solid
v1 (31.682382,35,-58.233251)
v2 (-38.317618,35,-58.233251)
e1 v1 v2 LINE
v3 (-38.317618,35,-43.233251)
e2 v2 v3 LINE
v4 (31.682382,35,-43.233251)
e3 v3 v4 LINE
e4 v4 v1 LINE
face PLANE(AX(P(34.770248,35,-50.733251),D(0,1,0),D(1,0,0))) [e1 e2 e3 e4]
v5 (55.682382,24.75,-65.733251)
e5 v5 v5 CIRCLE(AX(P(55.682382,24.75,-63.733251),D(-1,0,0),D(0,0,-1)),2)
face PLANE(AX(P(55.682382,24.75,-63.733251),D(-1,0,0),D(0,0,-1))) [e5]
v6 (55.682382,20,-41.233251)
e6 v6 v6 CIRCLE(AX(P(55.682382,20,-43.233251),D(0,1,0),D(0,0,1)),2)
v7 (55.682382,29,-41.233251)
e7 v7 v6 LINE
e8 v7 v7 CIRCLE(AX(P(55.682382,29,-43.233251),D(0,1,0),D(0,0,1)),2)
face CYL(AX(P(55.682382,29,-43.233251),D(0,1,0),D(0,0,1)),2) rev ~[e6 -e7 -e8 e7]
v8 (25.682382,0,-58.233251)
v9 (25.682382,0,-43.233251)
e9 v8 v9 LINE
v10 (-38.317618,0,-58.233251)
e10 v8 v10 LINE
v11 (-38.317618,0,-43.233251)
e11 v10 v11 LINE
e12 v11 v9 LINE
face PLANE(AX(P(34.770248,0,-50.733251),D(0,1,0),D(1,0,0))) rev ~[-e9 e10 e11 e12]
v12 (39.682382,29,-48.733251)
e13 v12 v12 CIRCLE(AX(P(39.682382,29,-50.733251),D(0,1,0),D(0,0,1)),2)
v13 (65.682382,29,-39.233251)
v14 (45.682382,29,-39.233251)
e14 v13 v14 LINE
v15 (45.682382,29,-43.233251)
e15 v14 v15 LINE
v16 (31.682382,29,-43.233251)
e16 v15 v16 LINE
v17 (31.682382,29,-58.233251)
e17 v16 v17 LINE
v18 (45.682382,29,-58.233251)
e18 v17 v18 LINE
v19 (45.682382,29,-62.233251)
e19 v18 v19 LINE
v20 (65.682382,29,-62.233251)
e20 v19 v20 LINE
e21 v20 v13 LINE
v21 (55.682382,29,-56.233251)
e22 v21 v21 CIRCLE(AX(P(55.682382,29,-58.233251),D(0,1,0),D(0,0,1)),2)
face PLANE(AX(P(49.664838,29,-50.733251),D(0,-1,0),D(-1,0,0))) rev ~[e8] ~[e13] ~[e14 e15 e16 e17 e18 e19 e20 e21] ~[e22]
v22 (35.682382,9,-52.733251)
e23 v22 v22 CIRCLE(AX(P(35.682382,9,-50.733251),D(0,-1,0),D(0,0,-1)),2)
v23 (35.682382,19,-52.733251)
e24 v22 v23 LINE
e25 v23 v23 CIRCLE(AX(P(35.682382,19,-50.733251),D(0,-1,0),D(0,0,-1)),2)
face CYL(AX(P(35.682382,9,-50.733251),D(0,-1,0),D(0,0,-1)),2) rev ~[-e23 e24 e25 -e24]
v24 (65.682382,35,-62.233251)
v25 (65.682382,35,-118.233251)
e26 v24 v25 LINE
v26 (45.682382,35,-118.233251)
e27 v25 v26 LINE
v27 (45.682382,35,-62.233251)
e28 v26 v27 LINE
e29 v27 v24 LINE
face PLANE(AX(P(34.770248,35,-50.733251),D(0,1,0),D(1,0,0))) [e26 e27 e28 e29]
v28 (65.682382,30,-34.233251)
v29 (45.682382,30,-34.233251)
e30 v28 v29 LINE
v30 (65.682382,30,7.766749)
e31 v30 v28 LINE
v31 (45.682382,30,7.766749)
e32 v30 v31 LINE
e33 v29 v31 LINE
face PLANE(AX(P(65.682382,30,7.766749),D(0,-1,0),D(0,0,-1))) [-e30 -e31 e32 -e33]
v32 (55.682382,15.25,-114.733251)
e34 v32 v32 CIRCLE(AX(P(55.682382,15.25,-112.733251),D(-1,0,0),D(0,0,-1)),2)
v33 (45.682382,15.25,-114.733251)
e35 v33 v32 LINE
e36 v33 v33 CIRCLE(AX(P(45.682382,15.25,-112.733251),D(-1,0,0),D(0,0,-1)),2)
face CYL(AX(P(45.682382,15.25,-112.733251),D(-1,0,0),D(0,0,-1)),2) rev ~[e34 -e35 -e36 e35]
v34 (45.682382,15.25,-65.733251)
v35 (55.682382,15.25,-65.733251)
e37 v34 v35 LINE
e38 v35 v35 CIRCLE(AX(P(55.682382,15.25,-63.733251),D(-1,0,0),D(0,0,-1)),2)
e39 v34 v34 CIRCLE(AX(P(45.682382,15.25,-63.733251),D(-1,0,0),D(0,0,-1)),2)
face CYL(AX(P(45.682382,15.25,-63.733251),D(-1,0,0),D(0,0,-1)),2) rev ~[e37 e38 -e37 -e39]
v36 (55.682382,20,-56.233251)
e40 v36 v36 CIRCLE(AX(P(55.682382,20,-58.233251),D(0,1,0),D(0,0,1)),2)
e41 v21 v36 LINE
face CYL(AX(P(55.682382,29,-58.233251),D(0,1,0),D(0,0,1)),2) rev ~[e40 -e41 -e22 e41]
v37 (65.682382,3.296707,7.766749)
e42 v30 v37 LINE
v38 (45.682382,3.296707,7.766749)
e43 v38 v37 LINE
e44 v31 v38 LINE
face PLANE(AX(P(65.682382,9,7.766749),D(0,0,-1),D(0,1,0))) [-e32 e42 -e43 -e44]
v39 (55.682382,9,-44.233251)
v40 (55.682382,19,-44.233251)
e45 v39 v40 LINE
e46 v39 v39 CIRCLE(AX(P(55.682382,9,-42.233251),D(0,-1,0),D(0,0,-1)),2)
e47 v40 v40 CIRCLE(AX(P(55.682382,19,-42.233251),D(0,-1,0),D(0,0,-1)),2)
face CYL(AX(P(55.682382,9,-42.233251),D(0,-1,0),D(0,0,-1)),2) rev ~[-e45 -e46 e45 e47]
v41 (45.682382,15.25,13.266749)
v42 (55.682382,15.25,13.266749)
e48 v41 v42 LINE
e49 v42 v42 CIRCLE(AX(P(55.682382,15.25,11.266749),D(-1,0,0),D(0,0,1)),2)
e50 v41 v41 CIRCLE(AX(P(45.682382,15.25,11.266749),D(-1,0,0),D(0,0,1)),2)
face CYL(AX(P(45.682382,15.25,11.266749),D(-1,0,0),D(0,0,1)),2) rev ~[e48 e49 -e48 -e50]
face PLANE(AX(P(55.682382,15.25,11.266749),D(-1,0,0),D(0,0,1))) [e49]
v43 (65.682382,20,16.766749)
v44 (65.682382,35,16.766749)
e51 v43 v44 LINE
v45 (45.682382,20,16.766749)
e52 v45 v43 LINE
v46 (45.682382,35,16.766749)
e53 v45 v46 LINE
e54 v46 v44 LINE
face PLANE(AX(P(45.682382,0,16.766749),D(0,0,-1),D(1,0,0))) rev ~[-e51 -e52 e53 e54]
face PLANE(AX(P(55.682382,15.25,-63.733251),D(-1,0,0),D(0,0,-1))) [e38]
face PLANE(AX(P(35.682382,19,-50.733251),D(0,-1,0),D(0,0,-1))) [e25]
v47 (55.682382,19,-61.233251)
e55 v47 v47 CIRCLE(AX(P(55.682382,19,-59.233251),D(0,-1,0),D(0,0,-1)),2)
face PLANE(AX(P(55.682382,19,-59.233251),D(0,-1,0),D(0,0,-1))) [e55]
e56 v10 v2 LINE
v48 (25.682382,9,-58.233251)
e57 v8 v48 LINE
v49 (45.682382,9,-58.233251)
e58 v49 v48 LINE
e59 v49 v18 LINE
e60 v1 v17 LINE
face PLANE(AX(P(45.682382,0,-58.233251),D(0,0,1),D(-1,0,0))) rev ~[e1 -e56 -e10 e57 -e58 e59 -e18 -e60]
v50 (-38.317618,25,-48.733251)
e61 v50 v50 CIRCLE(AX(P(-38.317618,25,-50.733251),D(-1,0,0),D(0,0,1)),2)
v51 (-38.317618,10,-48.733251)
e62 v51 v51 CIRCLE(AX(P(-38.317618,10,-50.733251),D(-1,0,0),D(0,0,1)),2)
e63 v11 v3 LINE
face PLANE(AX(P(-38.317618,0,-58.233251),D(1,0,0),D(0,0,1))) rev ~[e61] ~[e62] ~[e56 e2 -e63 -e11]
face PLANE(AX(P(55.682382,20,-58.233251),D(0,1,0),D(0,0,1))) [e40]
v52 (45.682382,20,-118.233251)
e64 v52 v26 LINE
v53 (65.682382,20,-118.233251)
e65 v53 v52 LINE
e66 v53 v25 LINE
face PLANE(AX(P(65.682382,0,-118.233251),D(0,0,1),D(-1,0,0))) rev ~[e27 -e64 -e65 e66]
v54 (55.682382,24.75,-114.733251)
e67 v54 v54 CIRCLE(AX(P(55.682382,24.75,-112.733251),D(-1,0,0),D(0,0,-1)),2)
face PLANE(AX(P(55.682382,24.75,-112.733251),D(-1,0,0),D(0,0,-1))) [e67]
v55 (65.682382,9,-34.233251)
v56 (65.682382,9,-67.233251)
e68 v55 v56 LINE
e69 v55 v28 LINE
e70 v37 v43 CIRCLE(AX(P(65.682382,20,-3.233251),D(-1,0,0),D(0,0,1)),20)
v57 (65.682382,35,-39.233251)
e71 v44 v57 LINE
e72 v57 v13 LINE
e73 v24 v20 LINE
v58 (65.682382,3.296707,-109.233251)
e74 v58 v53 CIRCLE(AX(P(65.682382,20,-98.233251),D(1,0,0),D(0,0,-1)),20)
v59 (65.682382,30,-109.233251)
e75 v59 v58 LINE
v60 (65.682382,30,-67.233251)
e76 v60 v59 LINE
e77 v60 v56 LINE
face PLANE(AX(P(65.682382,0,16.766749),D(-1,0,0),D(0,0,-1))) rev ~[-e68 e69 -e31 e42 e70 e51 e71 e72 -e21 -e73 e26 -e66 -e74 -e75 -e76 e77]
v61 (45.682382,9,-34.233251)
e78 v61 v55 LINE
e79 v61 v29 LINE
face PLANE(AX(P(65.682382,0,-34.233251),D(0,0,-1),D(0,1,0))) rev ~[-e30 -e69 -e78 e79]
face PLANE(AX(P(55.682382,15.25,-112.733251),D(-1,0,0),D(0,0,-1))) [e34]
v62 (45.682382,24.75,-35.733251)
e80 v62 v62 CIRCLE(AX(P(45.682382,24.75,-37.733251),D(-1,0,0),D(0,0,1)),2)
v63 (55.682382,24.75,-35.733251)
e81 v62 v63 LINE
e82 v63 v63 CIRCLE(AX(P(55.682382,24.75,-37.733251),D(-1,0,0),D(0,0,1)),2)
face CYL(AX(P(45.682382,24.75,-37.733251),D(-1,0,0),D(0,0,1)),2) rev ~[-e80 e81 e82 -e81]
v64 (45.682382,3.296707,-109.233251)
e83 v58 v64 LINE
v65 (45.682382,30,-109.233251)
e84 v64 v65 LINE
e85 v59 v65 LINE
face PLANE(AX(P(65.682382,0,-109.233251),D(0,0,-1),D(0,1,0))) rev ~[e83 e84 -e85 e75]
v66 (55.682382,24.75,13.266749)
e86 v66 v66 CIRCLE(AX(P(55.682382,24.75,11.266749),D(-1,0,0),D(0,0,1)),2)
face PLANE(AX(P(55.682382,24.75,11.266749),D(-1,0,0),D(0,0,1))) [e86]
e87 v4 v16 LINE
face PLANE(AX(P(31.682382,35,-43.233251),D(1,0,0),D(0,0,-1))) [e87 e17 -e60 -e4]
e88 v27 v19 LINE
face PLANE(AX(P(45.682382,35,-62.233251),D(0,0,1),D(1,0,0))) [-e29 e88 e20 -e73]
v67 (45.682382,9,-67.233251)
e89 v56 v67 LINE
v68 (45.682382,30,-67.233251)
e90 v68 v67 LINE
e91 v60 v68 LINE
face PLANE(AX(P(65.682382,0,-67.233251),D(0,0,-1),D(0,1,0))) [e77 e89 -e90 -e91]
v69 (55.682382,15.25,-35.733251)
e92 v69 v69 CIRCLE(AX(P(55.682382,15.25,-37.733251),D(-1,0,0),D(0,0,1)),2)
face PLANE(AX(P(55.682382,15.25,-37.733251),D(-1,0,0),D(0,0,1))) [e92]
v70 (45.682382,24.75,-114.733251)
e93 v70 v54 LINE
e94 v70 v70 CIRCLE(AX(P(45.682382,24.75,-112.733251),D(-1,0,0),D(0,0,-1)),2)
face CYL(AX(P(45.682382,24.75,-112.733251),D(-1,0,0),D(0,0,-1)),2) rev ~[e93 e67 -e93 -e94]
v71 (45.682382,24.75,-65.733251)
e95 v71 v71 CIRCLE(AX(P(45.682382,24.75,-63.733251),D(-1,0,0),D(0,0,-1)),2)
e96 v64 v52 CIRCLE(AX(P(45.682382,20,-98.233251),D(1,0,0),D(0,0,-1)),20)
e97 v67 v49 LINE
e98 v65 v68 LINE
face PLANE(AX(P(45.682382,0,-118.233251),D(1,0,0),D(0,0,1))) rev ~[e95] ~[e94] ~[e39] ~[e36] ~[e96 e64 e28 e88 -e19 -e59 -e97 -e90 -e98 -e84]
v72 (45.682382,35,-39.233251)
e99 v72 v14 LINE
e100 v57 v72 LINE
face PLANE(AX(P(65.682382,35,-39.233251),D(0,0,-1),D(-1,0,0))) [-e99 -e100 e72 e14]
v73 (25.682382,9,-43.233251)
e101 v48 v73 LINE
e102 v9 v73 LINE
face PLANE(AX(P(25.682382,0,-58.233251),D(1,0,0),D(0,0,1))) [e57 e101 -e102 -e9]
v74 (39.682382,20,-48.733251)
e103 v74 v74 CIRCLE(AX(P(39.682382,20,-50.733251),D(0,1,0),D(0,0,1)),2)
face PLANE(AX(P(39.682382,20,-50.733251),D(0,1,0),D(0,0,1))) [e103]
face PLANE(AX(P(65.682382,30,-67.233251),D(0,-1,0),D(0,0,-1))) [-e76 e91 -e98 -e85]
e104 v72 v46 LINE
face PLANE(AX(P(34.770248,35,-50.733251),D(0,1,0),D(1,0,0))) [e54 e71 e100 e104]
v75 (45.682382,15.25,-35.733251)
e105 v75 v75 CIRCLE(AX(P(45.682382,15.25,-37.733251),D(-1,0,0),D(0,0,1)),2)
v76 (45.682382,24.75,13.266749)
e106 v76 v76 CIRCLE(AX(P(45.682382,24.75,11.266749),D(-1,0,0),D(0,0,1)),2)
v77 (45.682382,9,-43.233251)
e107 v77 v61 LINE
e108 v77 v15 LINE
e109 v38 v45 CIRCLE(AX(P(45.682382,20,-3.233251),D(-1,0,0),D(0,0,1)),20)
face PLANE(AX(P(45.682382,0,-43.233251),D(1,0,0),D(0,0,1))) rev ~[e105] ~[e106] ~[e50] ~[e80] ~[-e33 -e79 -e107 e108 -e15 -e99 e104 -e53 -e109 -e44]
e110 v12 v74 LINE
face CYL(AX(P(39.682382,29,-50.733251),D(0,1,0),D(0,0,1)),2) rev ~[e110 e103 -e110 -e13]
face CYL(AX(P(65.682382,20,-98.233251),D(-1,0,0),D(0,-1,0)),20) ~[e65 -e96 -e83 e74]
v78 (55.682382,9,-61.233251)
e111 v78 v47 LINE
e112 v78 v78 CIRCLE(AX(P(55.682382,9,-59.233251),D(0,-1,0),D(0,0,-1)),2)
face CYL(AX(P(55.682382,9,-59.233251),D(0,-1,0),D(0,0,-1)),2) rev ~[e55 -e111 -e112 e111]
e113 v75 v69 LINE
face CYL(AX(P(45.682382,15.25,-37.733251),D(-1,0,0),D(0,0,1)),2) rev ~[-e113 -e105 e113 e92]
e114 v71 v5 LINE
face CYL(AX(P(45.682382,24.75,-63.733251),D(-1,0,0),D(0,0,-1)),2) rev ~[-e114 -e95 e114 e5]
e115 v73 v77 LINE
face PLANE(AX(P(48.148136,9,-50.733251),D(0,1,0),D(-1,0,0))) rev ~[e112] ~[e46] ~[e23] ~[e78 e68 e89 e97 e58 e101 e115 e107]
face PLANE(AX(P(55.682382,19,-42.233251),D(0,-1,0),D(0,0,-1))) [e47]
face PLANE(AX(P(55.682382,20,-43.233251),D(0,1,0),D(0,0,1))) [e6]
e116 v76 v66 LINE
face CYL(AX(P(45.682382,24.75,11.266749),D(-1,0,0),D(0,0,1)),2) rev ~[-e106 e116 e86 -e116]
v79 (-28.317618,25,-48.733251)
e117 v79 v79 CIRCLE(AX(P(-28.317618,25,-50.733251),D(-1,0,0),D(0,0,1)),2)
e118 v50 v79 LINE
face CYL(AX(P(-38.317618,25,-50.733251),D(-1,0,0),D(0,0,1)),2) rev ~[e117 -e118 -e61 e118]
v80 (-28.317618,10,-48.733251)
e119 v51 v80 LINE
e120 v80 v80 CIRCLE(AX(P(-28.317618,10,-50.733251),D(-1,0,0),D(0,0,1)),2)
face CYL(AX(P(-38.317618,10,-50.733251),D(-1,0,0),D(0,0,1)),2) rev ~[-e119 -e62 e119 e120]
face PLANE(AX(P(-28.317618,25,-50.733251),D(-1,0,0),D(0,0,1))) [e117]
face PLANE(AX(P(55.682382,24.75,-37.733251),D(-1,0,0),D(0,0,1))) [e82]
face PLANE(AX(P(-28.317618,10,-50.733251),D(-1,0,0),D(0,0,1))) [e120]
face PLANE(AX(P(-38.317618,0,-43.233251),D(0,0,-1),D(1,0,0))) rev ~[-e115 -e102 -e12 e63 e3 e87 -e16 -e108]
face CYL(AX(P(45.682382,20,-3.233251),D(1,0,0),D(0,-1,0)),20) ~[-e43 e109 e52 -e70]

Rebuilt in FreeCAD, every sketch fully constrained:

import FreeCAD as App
import Part
import Sketcher

V = App.Vector


def edges_at(feature, points):
    """Names of the edges that pass closest to the given points."""
    edges = feature.Shape.Edges
    near = lambda p: min(range(len(edges)), key=lambda i: edges[i].distToShape(Part.Vertex(*p))[0])
    return sorted({f"Edge{near(p) + 1}" for p in points})

doc = App.newDocument("Part")
body = doc.addObject("PartDesign::Body", "Body")

# Sketch on XZ plane
sketch1 = body.newObject("Sketcher::SketchObject", "Sketch")
sketch1.AttachmentSupport = (doc.getObject("XZ_Plane"), [""])
sketch1.MapMode = "FlatFace"
sketch1.addGeometry(Part.LineSegment(V(-38.317618, -43.233251, 0), V(45.682382, -43.233251, 0)), False)
sketch1.addGeometry(Part.LineSegment(V(45.682382, -43.233251, 0), V(45.682382, 16.766749, 0)), False)
sketch1.addGeometry(Part.LineSegment(V(45.682382, 16.766749, 0), V(65.682382, 16.766749, 0)), False)
sketch1.addGeometry(Part.LineSegment(V(65.682382, 16.766749, 0), V(65.682382, -118.233251, 0)), False)
sketch1.addGeometry(Part.LineSegment(V(65.682382, -118.233251, 0), V(45.682382, -118.233251, 0)), False)
sketch1.addGeometry(Part.LineSegment(V(45.682382, -118.233251, 0), V(45.682382, -58.233251, 0)), False)
sketch1.addGeometry(Part.LineSegment(V(45.682382, -58.233251, 0), V(-38.317618, -58.233251, 0)), False)
sketch1.addGeometry(Part.LineSegment(V(-38.317618, -58.233251, 0), V(-38.317618, -43.233251, 0)), False)
sketch1.addConstraint(Sketcher.Constraint("Coincident", 0, 2, 1, 1))
sketch1.addConstraint(Sketcher.Constraint("Coincident", 1, 2, 2, 1))
sketch1.addConstraint(Sketcher.Constraint("Coincident", 2, 2, 3, 1))
sketch1.addConstraint(Sketcher.Constraint("Coincident", 3, 2, 4, 1))
sketch1.addConstraint(Sketcher.Constraint("Coincident", 4, 2, 5, 1))
sketch1.addConstraint(Sketcher.Constraint("Coincident", 5, 2, 6, 1))
sketch1.addConstraint(Sketcher.Constraint("Coincident", 6, 2, 7, 1))
sketch1.addConstraint(Sketcher.Constraint("Coincident", 7, 2, 0, 1))
sketch1.addConstraint(Sketcher.Constraint("Horizontal", 0))
sketch1.addConstraint(Sketcher.Constraint("Vertical", 1))
sketch1.addConstraint(Sketcher.Constraint("Horizontal", 2))
sketch1.addConstraint(Sketcher.Constraint("Vertical", 3))
sketch1.addConstraint(Sketcher.Constraint("Horizontal", 4))
sketch1.addConstraint(Sketcher.Constraint("Vertical", 5))
sketch1.addConstraint(Sketcher.Constraint("Horizontal", 6))
sketch1.addConstraint(Sketcher.Constraint("Vertical", 7))
sketch1.addConstraint(Sketcher.Constraint("Vertical", 1, 2, 4, 2))
sketch1.addConstraint(Sketcher.Constraint("Equal", 1, 5))
sketch1.addConstraint(Sketcher.Constraint("DistanceX", 0, 1, 0, 2, 84.0))
sketch1.addConstraint(Sketcher.Constraint("DistanceX", 2, 1, 2, 2, 20.0))
sketch1.addConstraint(Sketcher.Constraint("DistanceY", 1, 1, 1, 2, 60.0))
sketch1.addConstraint(Sketcher.Constraint("DistanceY", 3, 2, 3, 1, 135.0))
sketch1.addConstraint(Sketcher.Constraint("DistanceY", 0, 2, -1, 1, 43.233251))
sketch1.addConstraint(Sketcher.Constraint("DistanceX", -1, 1, 0, 2, 45.682382))
pad1 = body.newObject("PartDesign::Pad", "Pad")
pad1.Profile = sketch1
pad1.Length = 35
pad1.Reversed = True

# Sketch on YZ plane
sketch2 = body.newObject("Sketcher::SketchObject", "Sketch001")
sketch2.AttachmentSupport = (doc.getObject("YZ_Plane"), [""])
sketch2.MapMode = "FlatFace"
sketch2.AttachmentOffset = App.Placement(V(0, 0, 65.682382), App.Rotation())
sketch2.addGeometry(Part.LineSegment(V(30, 7.766749, 0), V(9, 7.766749, 0)), False)
sketch2.addGeometry(Part.LineSegment(V(9, 7.766749, 0), V(9, -34.233251, 0)), False)
sketch2.addGeometry(Part.LineSegment(V(9, -34.233251, 0), V(30, -34.233251, 0)), False)
sketch2.addGeometry(Part.LineSegment(V(30, -34.233251, 0), V(30, 7.766749, 0)), False)
sketch2.addConstraint(Sketcher.Constraint("Coincident", 0, 2, 1, 1))
sketch2.addConstraint(Sketcher.Constraint("Coincident", 1, 2, 2, 1))
sketch2.addConstraint(Sketcher.Constraint("Coincident", 2, 2, 3, 1))
sketch2.addConstraint(Sketcher.Constraint("Coincident", 3, 2, 0, 1))
sketch2.addConstraint(Sketcher.Constraint("Horizontal", 0))
sketch2.addConstraint(Sketcher.Constraint("Vertical", 1))
sketch2.addConstraint(Sketcher.Constraint("Horizontal", 2))
sketch2.addConstraint(Sketcher.Constraint("Vertical", 3))
sketch2.addConstraint(Sketcher.Constraint("DistanceX", 0, 2, 0, 1, 21.0))
sketch2.addConstraint(Sketcher.Constraint("DistanceY", 1, 2, 1, 1, 42.0))
sketch2.addConstraint(Sketcher.Constraint("DistanceX", -1, 1, 0, 2, 9.0))
sketch2.addConstraint(Sketcher.Constraint("DistanceY", -1, 1, 0, 2, 7.766749))
pocket1 = body.newObject("PartDesign::Pocket", "Pocket")
pocket1.Profile = sketch2
pocket1.Type = "UpToFirst"

# Sketch on YZ plane
sketch3 = body.newObject("Sketcher::SketchObject", "Sketch002")
sketch3.AttachmentSupport = (doc.getObject("YZ_Plane"), [""])
sketch3.MapMode = "FlatFace"
sketch3.AttachmentOffset = App.Placement(V(0, 0, 65.682382), App.Rotation())
sketch3.addGeometry(Part.LineSegment(V(30, -67.233251, 0), V(9, -67.233251, 0)), False)
sketch3.addGeometry(Part.LineSegment(V(9, -67.233251, 0), V(9, -109.233251, 0)), False)
sketch3.addGeometry(Part.LineSegment(V(9, -109.233251, 0), V(30, -109.233251, 0)), False)
sketch3.addGeometry(Part.LineSegment(V(30, -109.233251, 0), V(30, -67.233251, 0)), False)
sketch3.addConstraint(Sketcher.Constraint("Coincident", 0, 2, 1, 1))
sketch3.addConstraint(Sketcher.Constraint("Coincident", 1, 2, 2, 1))
sketch3.addConstraint(Sketcher.Constraint("Coincident", 2, 2, 3, 1))
sketch3.addConstraint(Sketcher.Constraint("Coincident", 3, 2, 0, 1))
sketch3.addConstraint(Sketcher.Constraint("Horizontal", 0))
sketch3.addConstraint(Sketcher.Constraint("Vertical", 1))
sketch3.addConstraint(Sketcher.Constraint("Horizontal", 2))
sketch3.addConstraint(Sketcher.Constraint("Vertical", 3))
sketch3.addConstraint(Sketcher.Constraint("DistanceX", 0, 2, 0, 1, 21.0))
sketch3.addConstraint(Sketcher.Constraint("DistanceY", 1, 2, 1, 1, 42.0))
sketch3.addConstraint(Sketcher.Constraint("DistanceX", -1, 1, 0, 2, 9.0))
sketch3.addConstraint(Sketcher.Constraint("DistanceY", 0, 2, -1, 1, 67.233251))
pocket2 = body.newObject("PartDesign::Pocket", "Pocket001")
pocket2.Profile = sketch3
pocket2.Type = "UpToFirst"

# Sketch on YZ plane
sketch4 = body.newObject("Sketcher::SketchObject", "Sketch003")
sketch4.AttachmentSupport = (doc.getObject("YZ_Plane"), [""])
sketch4.MapMode = "FlatFace"
sketch4.AttachmentOffset = App.Placement(V(0, 0, 45.682382), App.Rotation())
sketch4.addGeometry(Part.Circle(V(24.75, 11.266749, 0), V(0, 0, 1), 2), False)
sketch4.addGeometry(Part.Circle(V(15.25, 11.266749, 0), V(0, 0, 1), 2), False)
sketch4.addGeometry(Part.Circle(V(24.75, -37.733251, 0), V(0, 0, 1), 2), False)
sketch4.addGeometry(Part.Circle(V(15.25, -37.733251, 0), V(0, 0, 1), 2), False)
sketch4.addGeometry(Part.Circle(V(24.75, -112.733251, 0), V(0, 0, 1), 2), False)
sketch4.addGeometry(Part.Circle(V(15.25, -112.733251, 0), V(0, 0, 1), 2), False)
sketch4.addGeometry(Part.Circle(V(15.25, -63.733251, 0), V(0, 0, 1), 2), False)
sketch4.addGeometry(Part.Circle(V(24.75, -63.733251, 0), V(0, 0, 1), 2), False)
sketch4.addConstraint(Sketcher.Constraint("Equal", 0, 1))
sketch4.addConstraint(Sketcher.Constraint("Equal", 1, 2))
sketch4.addConstraint(Sketcher.Constraint("Equal", 2, 3))
sketch4.addConstraint(Sketcher.Constraint("Equal", 3, 4))
sketch4.addConstraint(Sketcher.Constraint("Equal", 4, 5))
sketch4.addConstraint(Sketcher.Constraint("Equal", 5, 6))
sketch4.addConstraint(Sketcher.Constraint("Equal", 6, 7))
sketch4.addConstraint(Sketcher.Constraint("Horizontal", 0, 3, 1, 3))
sketch4.addConstraint(Sketcher.Constraint("Horizontal", 2, 3, 3, 3))
sketch4.addConstraint(Sketcher.Constraint("Horizontal", 4, 3, 5, 3))
sketch4.addConstraint(Sketcher.Constraint("Horizontal", 6, 3, 7, 3))
sketch4.addConstraint(Sketcher.Constraint("Vertical", 0, 3, 2, 3))
sketch4.addConstraint(Sketcher.Constraint("Vertical", 1, 3, 3, 3))
sketch4.addConstraint(Sketcher.Constraint("Vertical", 2, 3, 4, 3))
sketch4.addConstraint(Sketcher.Constraint("Vertical", 3, 3, 5, 3))
sketch4.addConstraint(Sketcher.Constraint("Vertical", 5, 3, 6, 3))
sketch4.addConstraint(Sketcher.Constraint("Vertical", 4, 3, 7, 3))
sketch4.addConstraint(Sketcher.Constraint("Diameter", 0, 4.0))
sketch4.addConstraint(Sketcher.Constraint("DistanceY", 2, 3, 0, 3, 49.0))
sketch4.addConstraint(Sketcher.Constraint("DistanceY", 4, 3, 2, 3, 75.0))
sketch4.addConstraint(Sketcher.Constraint("DistanceY", 6, 3, 3, 3, 26.0))
sketch4.addConstraint(Sketcher.Constraint("DistanceX", 1, 3, 0, 3, 9.5))
sketch4.addConstraint(Sketcher.Constraint("DistanceX", -1, 1, 0, 3, 24.75))
sketch4.addConstraint(Sketcher.Constraint("DistanceY", -1, 1, 0, 3, 11.266749))
pocket3 = body.newObject("PartDesign::Pocket", "Pocket002")
pocket3.Profile = sketch4
pocket3.Length = 10
pocket3.Reversed = True
doc.recompute()

fillet = body.newObject("PartDesign::Fillet", "Fillet")
fillet.Base = (pocket3, edges_at(pocket3, [(55.682, 0, -118.233), (55.682, 0, 16.767)]))
fillet.Radius = 20

# Sketch on YZ plane
sketch5 = body.newObject("Sketcher::SketchObject", "Sketch004")
sketch5.AttachmentSupport = (doc.getObject("YZ_Plane"), [""])
sketch5.MapMode = "FlatFace"
sketch5.AttachmentOffset = App.Placement(V(0, 0, 65.682382), App.Rotation())
sketch5.addGeometry(Part.LineSegment(V(9, 7.766749, 0), V(0, 7.766749, 0)), False)
sketch5.addGeometry(Part.LineSegment(V(0, 7.766749, 0), V(0, -34.233251, 0)), False)
sketch5.addGeometry(Part.LineSegment(V(0, -34.233251, 0), V(9, -34.233251, 0)), False)
sketch5.addGeometry(Part.LineSegment(V(9, -34.233251, 0), V(9, 7.766749, 0)), False)
sketch5.addConstraint(Sketcher.Constraint("Coincident", 0, 2, 1, 1))
sketch5.addConstraint(Sketcher.Constraint("Coincident", 1, 2, 2, 1))
sketch5.addConstraint(Sketcher.Constraint("Coincident", 2, 2, 3, 1))
sketch5.addConstraint(Sketcher.Constraint("Coincident", 3, 2, 0, 1))
sketch5.addConstraint(Sketcher.Constraint("Horizontal", 0))
sketch5.addConstraint(Sketcher.Constraint("Vertical", 1))
sketch5.addConstraint(Sketcher.Constraint("Horizontal", 2))
sketch5.addConstraint(Sketcher.Constraint("Vertical", 3))
sketch5.addConstraint(Sketcher.Constraint("PointOnObject", 0, 2, -2))
sketch5.addConstraint(Sketcher.Constraint("DistanceX", 0, 2, 0, 1, 9.0))
sketch5.addConstraint(Sketcher.Constraint("DistanceY", 1, 2, 1, 1, 42.0))
sketch5.addConstraint(Sketcher.Constraint("DistanceY", -1, 1, 0, 2, 7.766749))
pocket4 = body.newObject("PartDesign::Pocket", "Pocket003")
pocket4.Profile = sketch5
pocket4.Type = "UpToFirst"

# Sketch on YZ plane
sketch6 = body.newObject("Sketcher::SketchObject", "Sketch005")
sketch6.AttachmentSupport = (doc.getObject("YZ_Plane"), [""])
sketch6.MapMode = "FlatFace"
sketch6.AttachmentOffset = App.Placement(V(0, 0, 65.682382), App.Rotation())
sketch6.addGeometry(Part.LineSegment(V(9, -67.233251, 0), V(0, -67.233251, 0)), False)
sketch6.addGeometry(Part.LineSegment(V(0, -67.233251, 0), V(0, -109.233251, 0)), False)
sketch6.addGeometry(Part.LineSegment(V(0, -109.233251, 0), V(9, -109.233251, 0)), False)
sketch6.addGeometry(Part.LineSegment(V(9, -109.233251, 0), V(9, -67.233251, 0)), False)
sketch6.addConstraint(Sketcher.Constraint("Coincident", 0, 2, 1, 1))
sketch6.addConstraint(Sketcher.Constraint("Coincident", 1, 2, 2, 1))
sketch6.addConstraint(Sketcher.Constraint("Coincident", 2, 2, 3, 1))
sketch6.addConstraint(Sketcher.Constraint("Coincident", 3, 2, 0, 1))
sketch6.addConstraint(Sketcher.Constraint("Horizontal", 0))
sketch6.addConstraint(Sketcher.Constraint("Vertical", 1))
sketch6.addConstraint(Sketcher.Constraint("Horizontal", 2))
sketch6.addConstraint(Sketcher.Constraint("Vertical", 3))
sketch6.addConstraint(Sketcher.Constraint("PointOnObject", 0, 2, -2))
sketch6.addConstraint(Sketcher.Constraint("DistanceX", 0, 2, 0, 1, 9.0))
sketch6.addConstraint(Sketcher.Constraint("DistanceY", 1, 2, 1, 1, 42.0))
sketch6.addConstraint(Sketcher.Constraint("DistanceY", 0, 2, -1, 1, 67.233251))
pocket5 = body.newObject("PartDesign::Pocket", "Pocket004")
pocket5.Profile = sketch6
pocket5.Type = "UpToFirst"

# Sketch on YZ plane
sketch7 = body.newObject("Sketcher::SketchObject", "Sketch006")
sketch7.AttachmentSupport = (doc.getObject("YZ_Plane"), [""])
sketch7.MapMode = "FlatFace"
sketch7.AttachmentOffset = App.Placement(V(0, 0, -38.317618), App.Rotation())
sketch7.addGeometry(Part.Circle(V(25, -50.733251, 0), V(0, 0, 1), 2), False)
sketch7.addGeometry(Part.Circle(V(10, -50.733251, 0), V(0, 0, 1), 2), False)
sketch7.addConstraint(Sketcher.Constraint("Equal", 0, 1))
sketch7.addConstraint(Sketcher.Constraint("Horizontal", 0, 3, 1, 3))
sketch7.addConstraint(Sketcher.Constraint("Diameter", 0, 4.0))
sketch7.addConstraint(Sketcher.Constraint("DistanceX", -1, 1, 0, 3, 25.0))
sketch7.addConstraint(Sketcher.Constraint("DistanceX", -1, 1, 1, 3, 10.0))
sketch7.addConstraint(Sketcher.Constraint("DistanceY", 0, 3, -1, 1, 50.733251))
pocket6 = body.newObject("PartDesign::Pocket", "Pocket005")
pocket6.Profile = sketch7
pocket6.Length = 10
pocket6.Reversed = True

# Sketch on XZ plane
sketch8 = body.newObject("Sketcher::SketchObject", "Sketch007")
sketch8.AttachmentSupport = (doc.getObject("XZ_Plane"), [""])
sketch8.MapMode = "FlatFace"
sketch8.addGeometry(Part.LineSegment(V(45.682382, -58.233251, 0), V(45.682382, -67.233251, 0)), False)
sketch8.addGeometry(Part.LineSegment(V(45.682382, -67.233251, 0), V(65.682382, -67.233251, 0)), False)
sketch8.addGeometry(Part.LineSegment(V(65.682382, -67.233251, 0), V(65.682382, -34.233251, 0)), False)
sketch8.addGeometry(Part.LineSegment(V(65.682382, -34.233251, 0), V(45.682382, -34.233251, 0)), False)
sketch8.addGeometry(Part.LineSegment(V(45.682382, -34.233251, 0), V(45.682382, -43.233251, 0)), False)
sketch8.addGeometry(Part.LineSegment(V(45.682382, -43.233251, 0), V(25.682382, -43.233251, 0)), False)
sketch8.addGeometry(Part.LineSegment(V(25.682382, -43.233251, 0), V(25.682382, -58.233251, 0)), False)
sketch8.addGeometry(Part.LineSegment(V(25.682382, -58.233251, 0), V(45.682382, -58.233251, 0)), False)
sketch8.addConstraint(Sketcher.Constraint("Coincident", 0, 2, 1, 1))
sketch8.addConstraint(Sketcher.Constraint("Coincident", 1, 2, 2, 1))
sketch8.addConstraint(Sketcher.Constraint("Coincident", 2, 2, 3, 1))
sketch8.addConstraint(Sketcher.Constraint("Coincident", 3, 2, 4, 1))
sketch8.addConstraint(Sketcher.Constraint("Coincident", 4, 2, 5, 1))
sketch8.addConstraint(Sketcher.Constraint("Coincident", 5, 2, 6, 1))
sketch8.addConstraint(Sketcher.Constraint("Coincident", 6, 2, 7, 1))
sketch8.addConstraint(Sketcher.Constraint("Coincident", 7, 2, 0, 1))
sketch8.addConstraint(Sketcher.Constraint("Vertical", 0))
sketch8.addConstraint(Sketcher.Constraint("Horizontal", 1))
sketch8.addConstraint(Sketcher.Constraint("Vertical", 2))
sketch8.addConstraint(Sketcher.Constraint("Horizontal", 3))
sketch8.addConstraint(Sketcher.Constraint("Vertical", 4))
sketch8.addConstraint(Sketcher.Constraint("Horizontal", 5))
sketch8.addConstraint(Sketcher.Constraint("Vertical", 6))
sketch8.addConstraint(Sketcher.Constraint("Horizontal", 7))
sketch8.addConstraint(Sketcher.Constraint("Vertical", 0, 2, 3, 2))
sketch8.addConstraint(Sketcher.Constraint("Equal", 3, 5))
sketch8.addConstraint(Sketcher.Constraint("Equal", 0, 4))
sketch8.addConstraint(Sketcher.Constraint("DistanceX", 1, 1, 1, 2, 20.0))
sketch8.addConstraint(Sketcher.Constraint("DistanceY", 0, 2, 0, 1, 9.0))
sketch8.addConstraint(Sketcher.Constraint("DistanceY", 2, 1, 2, 2, 33.0))
sketch8.addConstraint(Sketcher.Constraint("DistanceY", 0, 2, -1, 1, 67.233251))
sketch8.addConstraint(Sketcher.Constraint("DistanceX", -1, 1, 0, 2, 45.682382))
pocket7 = body.newObject("PartDesign::Pocket", "Pocket006")
pocket7.Profile = sketch8
pocket7.Length = 9

# Sketch on XZ plane
sketch9 = body.newObject("Sketcher::SketchObject", "Sketch008")
sketch9.AttachmentSupport = (doc.getObject("XZ_Plane"), [""])
sketch9.MapMode = "FlatFace"
sketch9.AttachmentOffset = App.Placement(V(0, 0, -9), App.Rotation())
sketch9.addGeometry(Part.Circle(V(55.682382, -42.233251, 0), V(0, 0, 1), 2), False)
sketch9.addGeometry(Part.Circle(V(55.682382, -59.233251, 0), V(0, 0, 1), 2), False)
sketch9.addGeometry(Part.Circle(V(35.682382, -50.733251, 0), V(0, 0, 1), 2), False)
sketch9.addConstraint(Sketcher.Constraint("Equal", 0, 1))
sketch9.addConstraint(Sketcher.Constraint("Equal", 1, 2))
sketch9.addConstraint(Sketcher.Constraint("Vertical", 0, 3, 1, 3))
sketch9.addConstraint(Sketcher.Constraint("Diameter", 0, 4.0))
sketch9.addConstraint(Sketcher.Constraint("DistanceY", 1, 3, 0, 3, 17.0))
sketch9.addConstraint(Sketcher.Constraint("DistanceX", 2, 3, 0, 3, 20.0))
sketch9.addConstraint(Sketcher.Constraint("DistanceY", 2, 3, 0, 3, 8.5))
sketch9.addConstraint(Sketcher.Constraint("DistanceY", 0, 3, -1, 1, 42.233251))
sketch9.addConstraint(Sketcher.Constraint("DistanceX", -1, 1, 0, 3, 55.682382))
pocket8 = body.newObject("PartDesign::Pocket", "Pocket007")
pocket8.Profile = sketch9
pocket8.Length = 10

# Sketch on XZ plane
sketch10 = body.newObject("Sketcher::SketchObject", "Sketch009")
sketch10.AttachmentSupport = (doc.getObject("XZ_Plane"), [""])
sketch10.MapMode = "FlatFace"
sketch10.AttachmentOffset = App.Placement(V(0, 0, -35), App.Rotation())
sketch10.addGeometry(Part.LineSegment(V(65.682382, -62.233251, 0), V(45.682382, -62.233251, 0)), False)
sketch10.addGeometry(Part.LineSegment(V(45.682382, -62.233251, 0), V(45.682382, -58.233251, 0)), False)
sketch10.addGeometry(Part.LineSegment(V(45.682382, -58.233251, 0), V(31.682382, -58.233251, 0)), False)
sketch10.addGeometry(Part.LineSegment(V(31.682382, -58.233251, 0), V(31.682382, -43.233251, 0)), False)
sketch10.addGeometry(Part.LineSegment(V(31.682382, -43.233251, 0), V(45.682382, -43.233251, 0)), False)
sketch10.addGeometry(Part.LineSegment(V(45.682382, -43.233251, 0), V(45.682382, -39.233251, 0)), False)
sketch10.addGeometry(Part.LineSegment(V(45.682382, -39.233251, 0), V(65.682382, -39.233251, 0)), False)
sketch10.addGeometry(Part.LineSegment(V(65.682382, -39.233251, 0), V(65.682382, -62.233251, 0)), False)
sketch10.addConstraint(Sketcher.Constraint("Coincident", 0, 2, 1, 1))
sketch10.addConstraint(Sketcher.Constraint("Coincident", 1, 2, 2, 1))
sketch10.addConstraint(Sketcher.Constraint("Coincident", 2, 2, 3, 1))
sketch10.addConstraint(Sketcher.Constraint("Coincident", 3, 2, 4, 1))
sketch10.addConstraint(Sketcher.Constraint("Coincident", 4, 2, 5, 1))
sketch10.addConstraint(Sketcher.Constraint("Coincident", 5, 2, 6, 1))
sketch10.addConstraint(Sketcher.Constraint("Coincident", 6, 2, 7, 1))
sketch10.addConstraint(Sketcher.Constraint("Coincident", 7, 2, 0, 1))
sketch10.addConstraint(Sketcher.Constraint("Horizontal", 0))
sketch10.addConstraint(Sketcher.Constraint("Vertical", 1))
sketch10.addConstraint(Sketcher.Constraint("Horizontal", 2))
sketch10.addConstraint(Sketcher.Constraint("Vertical", 3))
sketch10.addConstraint(Sketcher.Constraint("Horizontal", 4))
sketch10.addConstraint(Sketcher.Constraint("Vertical", 5))
sketch10.addConstraint(Sketcher.Constraint("Horizontal", 6))
sketch10.addConstraint(Sketcher.Constraint("Vertical", 7))
sketch10.addConstraint(Sketcher.Constraint("Vertical", 1, 2, 4, 2))
sketch10.addConstraint(Sketcher.Constraint("Equal", 1, 5))
sketch10.addConstraint(Sketcher.Constraint("DistanceX", 0, 2, 0, 1, 20.0))
sketch10.addConstraint(Sketcher.Constraint("DistanceX", 2, 2, 2, 1, 14.0))
sketch10.addConstraint(Sketcher.Constraint("DistanceY", 1, 1, 1, 2, 4.0))
sketch10.addConstraint(Sketcher.Constraint("DistanceY", 3, 1, 3, 2, 15.0))
sketch10.addConstraint(Sketcher.Constraint("DistanceY", 0, 2, -1, 1, 62.233251))
sketch10.addConstraint(Sketcher.Constraint("DistanceX", -1, 1, 0, 2, 45.682382))
pocket9 = body.newObject("PartDesign::Pocket", "Pocket008")
pocket9.Profile = sketch10
pocket9.Length = 6
pocket9.Reversed = True

# Sketch on XZ plane
sketch11 = body.newObject("Sketcher::SketchObject", "Sketch010")
sketch11.AttachmentSupport = (doc.getObject("XZ_Plane"), [""])
sketch11.MapMode = "FlatFace"
sketch11.AttachmentOffset = App.Placement(V(0, 0, -29), App.Rotation())
sketch11.addGeometry(Part.Circle(V(55.682382, -58.233251, 0), V(0, 0, 1), 2), False)
sketch11.addGeometry(Part.Circle(V(55.682382, -43.233251, 0), V(0, 0, 1), 2), False)
sketch11.addGeometry(Part.Circle(V(39.682382, -50.733251, 0), V(0, 0, 1), 2), False)
sketch11.addConstraint(Sketcher.Constraint("Equal", 0, 1))
sketch11.addConstraint(Sketcher.Constraint("Equal", 1, 2))
sketch11.addConstraint(Sketcher.Constraint("Vertical", 0, 3, 1, 3))
sketch11.addConstraint(Sketcher.Constraint("Diameter", 0, 4.0))
sketch11.addConstraint(Sketcher.Constraint("DistanceY", 0, 3, 1, 3, 15.0))
sketch11.addConstraint(Sketcher.Constraint("DistanceX", 2, 3, 0, 3, 16.0))
sketch11.addConstraint(Sketcher.Constraint("DistanceY", 0, 3, 2, 3, 7.5))
sketch11.addConstraint(Sketcher.Constraint("DistanceY", 0, 3, -1, 1, 58.233251))
sketch11.addConstraint(Sketcher.Constraint("DistanceX", -1, 1, 0, 3, 55.682382))
pocket10 = body.newObject("PartDesign::Pocket", "Pocket009")
pocket10.Profile = sketch11
pocket10.Length = 9
pocket10.Reversed = True

doc.recompute()
